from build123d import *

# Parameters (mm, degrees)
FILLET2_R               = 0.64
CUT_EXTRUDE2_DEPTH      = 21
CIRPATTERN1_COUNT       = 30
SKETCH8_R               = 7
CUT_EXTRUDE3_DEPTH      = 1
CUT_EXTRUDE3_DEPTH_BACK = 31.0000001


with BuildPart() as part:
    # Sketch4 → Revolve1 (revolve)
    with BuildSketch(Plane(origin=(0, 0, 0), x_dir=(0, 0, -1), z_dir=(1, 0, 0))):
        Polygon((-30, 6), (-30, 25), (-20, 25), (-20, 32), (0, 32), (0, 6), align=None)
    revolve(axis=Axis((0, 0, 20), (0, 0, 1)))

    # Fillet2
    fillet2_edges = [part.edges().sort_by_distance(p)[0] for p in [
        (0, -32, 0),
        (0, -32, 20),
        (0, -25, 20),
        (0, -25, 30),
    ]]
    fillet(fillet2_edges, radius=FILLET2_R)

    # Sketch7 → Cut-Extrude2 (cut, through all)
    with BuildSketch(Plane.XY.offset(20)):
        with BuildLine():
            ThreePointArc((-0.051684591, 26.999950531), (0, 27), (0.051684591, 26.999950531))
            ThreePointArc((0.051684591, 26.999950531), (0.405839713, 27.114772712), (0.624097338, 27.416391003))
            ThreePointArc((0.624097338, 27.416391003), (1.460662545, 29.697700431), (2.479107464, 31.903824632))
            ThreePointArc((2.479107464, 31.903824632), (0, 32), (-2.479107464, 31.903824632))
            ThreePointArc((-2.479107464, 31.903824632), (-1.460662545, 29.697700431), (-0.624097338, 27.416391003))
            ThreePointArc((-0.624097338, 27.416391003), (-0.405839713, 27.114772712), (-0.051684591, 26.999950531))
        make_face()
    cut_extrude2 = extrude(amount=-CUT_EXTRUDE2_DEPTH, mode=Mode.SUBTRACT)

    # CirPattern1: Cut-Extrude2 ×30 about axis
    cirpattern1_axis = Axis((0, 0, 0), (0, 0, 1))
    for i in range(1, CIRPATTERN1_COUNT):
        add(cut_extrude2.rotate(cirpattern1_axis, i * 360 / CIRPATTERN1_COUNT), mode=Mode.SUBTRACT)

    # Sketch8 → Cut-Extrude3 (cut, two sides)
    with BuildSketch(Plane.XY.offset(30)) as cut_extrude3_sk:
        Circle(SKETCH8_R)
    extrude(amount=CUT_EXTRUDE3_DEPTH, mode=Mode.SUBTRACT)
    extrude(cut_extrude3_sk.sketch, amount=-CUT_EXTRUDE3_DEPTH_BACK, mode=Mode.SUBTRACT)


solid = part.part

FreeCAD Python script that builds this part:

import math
import FreeCAD as App
import Part
import Sketcher

V = App.Vector


def edges_at(feature, points):
    """Names of the edges that pass closest to the given points."""
    edges = feature.Shape.Edges
    near = lambda p: min(range(len(edges)), key=lambda i: edges[i].distToShape(Part.Vertex(*p))[0])
    return sorted({f"Edge{near(p) + 1}" for p in points})


def add_polygon(sketch, points):
    """Adds a closed chain of lines whose ends are joined by coincident constraints."""
    first, n = sketch.GeometryCount, len(points)
    for a, b in zip(points, points[1:] + points[:1]):
        sketch.addGeometry(Part.LineSegment(App.Vector(*a, 0), App.Vector(*b, 0)), False)
    for i in range(n):
        sketch.addConstraint(Sketcher.Constraint("Coincident", first + i, 2, first + (i + 1) % n, 1))

doc = App.newDocument("Part")
params = doc.addObject("Spreadsheet::Sheet", "Params")
for row, (alias, value) in enumerate([
    ("sketch1_width", "19 mm"),
    ("sketch1_width2", "26 mm"),
    ("sketch1_height", "30 mm"),
    ("sketch1_height2", "20 mm"),
    ("revolution_angle", "360 deg"),
    ("fillet_radius", "0.64 mm"),
    ("sketch2_radius", "30 mm"),
    ("sketch2_radius2", "32 mm"),
    ("sketch2_radius3", "30 mm"),
    ("sketch3_diameter", "14 mm"),
], start=1):
    params.set(f"A{row}", alias)
    params.set(f"B{row}", "=" + value)
    params.setAlias(f"B{row}", alias)

body = doc.addObject("PartDesign::Body", "Body")

# Sketch on YZ plane
sketch1 = body.newObject("Sketcher::SketchObject", "Sketch")
sketch1.AttachmentSupport = (doc.getObject("YZ_Plane"), [""])
sketch1.MapMode = "FlatFace"
add_polygon(sketch1, [(25, 30), (6, 30), (6, 0), (32, 0), (32, 20), (25, 20)])  # lines 0-5
sketch1.addConstraint([
    Sketcher.Constraint("Horizontal", 0),
    Sketcher.Constraint("Vertical", 1),
    Sketcher.Constraint("Horizontal", 2),
    Sketcher.Constraint("Vertical", 3),
    Sketcher.Constraint("Horizontal", 4),
    Sketcher.Constraint("Vertical", 5),
    Sketcher.Constraint("PointOnObject", 1, 2, -1),
    Sketcher.Constraint("DistanceX", 0, 2, 0, 1, 19.0),
    Sketcher.Constraint("DistanceX", 2, 1, 2, 2, 26.0),
    Sketcher.Constraint("DistanceY", 1, 2, 1, 1, 30.0),
    Sketcher.Constraint("DistanceY", 3, 1, 3, 2, 20.0),
    Sketcher.Constraint("DistanceX", -1, 1, 0, 2, 6.0),
])
sketch1.setExpression("Constraints[13]", "Params.sketch1_width")
sketch1.setExpression("Constraints[14]", "Params.sketch1_width2")
sketch1.setExpression("Constraints[15]", "Params.sketch1_height")
sketch1.setExpression("Constraints[16]", "Params.sketch1_height2")
revolution = body.newObject("PartDesign::Revolution", "Revolution")
revolution.Profile = sketch1
revolution.ReferenceAxis = (sketch1, ["V_Axis"])
revolution.setExpression("Angle", "Params.revolution_angle")
doc.recompute()

fillet = body.newObject("PartDesign::Fillet", "Fillet")
fillet.Base = (revolution, edges_at(revolution, [
    (0, -32, 0),
    (0, -32, 20),
    (0, -25, 20),
    (0, -25, 30),
]))
fillet.setExpression("Radius", "Params.fillet_radius")

# Sketch on XY plane
sketch2 = body.newObject("Sketcher::SketchObject", "Sketch001")
sketch2.AttachmentSupport = (doc.getObject("XY_Plane"), [""])
sketch2.MapMode = "FlatFace"
sketch2.AttachmentOffset = App.Placement(V(0, 0, 20), App.Rotation())
sketch2.addGeometry([
    Part.ArcOfCircle(Part.Circle(V(0, 0.000269, 0), V(0, 0, 1), 26.999731), math.radians(89.890321), math.radians(90.109679)),  # 0
    Part.ArcOfCircle(Part.Circle(V(0.052833, 27.599993, 0), V(0, 0, 1), 0.600044), math.radians(-90.109678), math.radians(-17.817208)),  # 1
    Part.ArcOfCircle(Part.Circle(V(29.185224, 18.236953, 0), V(0, 0, 1), 30), math.radians(152.898876), math.radians(162.182792)),  # 2
    Part.ArcOfCircle(Part.Circle(V(0, 0, 0), V(0, 0, 1), 32), math.radians(85.556723), math.radians(94.443277)),  # 3
    Part.ArcOfCircle(Part.Circle(V(-29.185224, 18.236953, 0), V(0, 0, 1), 30), math.radians(17.817208), math.radians(27.101124)),  # 4
    Part.ArcOfCircle(Part.Circle(V(-0.052833, 27.599993, 0), V(0, 0, 1), 0.600044), math.radians(-162.182792), math.radians(-89.890322)),  # 5
], False)
sketch2.addConstraint([
    Sketcher.Constraint("Coincident", 0, 1, 1, 1),
    Sketcher.Constraint("Coincident", 1, 2, 2, 2),
    Sketcher.Constraint("Coincident", 2, 1, 3, 1),
    Sketcher.Constraint("Coincident", 3, 2, 4, 2),
    Sketcher.Constraint("Coincident", 4, 1, 5, 1),
    Sketcher.Constraint("Coincident", 5, 2, 0, 2),
    Sketcher.Constraint("Coincident", 3, 3, -1, 1),
    Sketcher.Constraint("PointOnObject", 0, 3, -2),
    Sketcher.Constraint("Radius", 2, 30.0),
    Sketcher.Constraint("Radius", 3, 32.0),
    Sketcher.Constraint("Radius", 4, 30.0),
    Sketcher.Constraint("Radius", 0, 26.999731),
    Sketcher.Constraint("Radius", 1, 0.600044),
    Sketcher.Constraint("Radius", 5, 0.600044),
    Sketcher.Constraint("DistanceY", -1, 1, 0, 3, 0.000269),
    Sketcher.Constraint("DistanceY", -1, 1, 1, 2, 27.416391),
    Sketcher.Constraint("DistanceY", -1, 1, 4, 1, 27.416391),
    Sketcher.Constraint("DistanceX", 1, 3, 2, 3, 29.13239),
    Sketcher.Constraint("DistanceY", 4, 3, 1, 3, 9.36304),
    Sketcher.Constraint("DistanceX", 0, 1, 1, 3, 0.001149),
    Sketcher.Constraint("DistanceX", 5, 3, 1, 2, 0.676931),
    Sketcher.Constraint("DistanceY", 5, 3, 3, 2, 4.303832),
    Sketcher.Constraint("DistanceX", 5, 2, 0, 1, 0.103369),
])
sketch2.setExpression("Constraints[8]", "Params.sketch2_radius")
sketch2.setExpression("Constraints[9]", "Params.sketch2_radius2")
sketch2.setExpression("Constraints[10]", "Params.sketch2_radius3")
pocket1 = body.newObject("PartDesign::Pocket", "Pocket")
pocket1.Profile = sketch2
pocket1.Type = "ThroughAll"
doc.recompute()

polarpattern = body.newObject("PartDesign::PolarPattern", "PolarPattern")
polarpattern.Originals = [pocket1]
polarpattern.Axis = (doc.getObject("Z_Axis"), [""])
polarpattern.Angle = 360
polarpattern.Occurrences = 30
body.Tip = polarpattern

# Sketch on XY plane
sketch3 = body.newObject("Sketcher::SketchObject", "Sketch002")
sketch3.AttachmentSupport = (doc.getObject("XY_Plane"), [""])
sketch3.MapMode = "FlatFace"
sketch3.AttachmentOffset = App.Placement(V(0, 0, 30), App.Rotation())
sketch3.addGeometry(Part.Circle(V(0, 0, 0), V(0, 0, 1), 7), False)
sketch3.addConstraint([
    Sketcher.Constraint("Coincident", 0, 3, -1, 1),
    Sketcher.Constraint("Diameter", 0, 14.0),
])
sketch3.setExpression("Constraints[1]", "Params.sketch3_diameter")
pocket2 = body.newObject("PartDesign::Pocket", "Pocket001")
pocket2.Profile = sketch3
pocket2.Type = "ThroughAll"
pocket2.Midplane = True

doc.recompute()
